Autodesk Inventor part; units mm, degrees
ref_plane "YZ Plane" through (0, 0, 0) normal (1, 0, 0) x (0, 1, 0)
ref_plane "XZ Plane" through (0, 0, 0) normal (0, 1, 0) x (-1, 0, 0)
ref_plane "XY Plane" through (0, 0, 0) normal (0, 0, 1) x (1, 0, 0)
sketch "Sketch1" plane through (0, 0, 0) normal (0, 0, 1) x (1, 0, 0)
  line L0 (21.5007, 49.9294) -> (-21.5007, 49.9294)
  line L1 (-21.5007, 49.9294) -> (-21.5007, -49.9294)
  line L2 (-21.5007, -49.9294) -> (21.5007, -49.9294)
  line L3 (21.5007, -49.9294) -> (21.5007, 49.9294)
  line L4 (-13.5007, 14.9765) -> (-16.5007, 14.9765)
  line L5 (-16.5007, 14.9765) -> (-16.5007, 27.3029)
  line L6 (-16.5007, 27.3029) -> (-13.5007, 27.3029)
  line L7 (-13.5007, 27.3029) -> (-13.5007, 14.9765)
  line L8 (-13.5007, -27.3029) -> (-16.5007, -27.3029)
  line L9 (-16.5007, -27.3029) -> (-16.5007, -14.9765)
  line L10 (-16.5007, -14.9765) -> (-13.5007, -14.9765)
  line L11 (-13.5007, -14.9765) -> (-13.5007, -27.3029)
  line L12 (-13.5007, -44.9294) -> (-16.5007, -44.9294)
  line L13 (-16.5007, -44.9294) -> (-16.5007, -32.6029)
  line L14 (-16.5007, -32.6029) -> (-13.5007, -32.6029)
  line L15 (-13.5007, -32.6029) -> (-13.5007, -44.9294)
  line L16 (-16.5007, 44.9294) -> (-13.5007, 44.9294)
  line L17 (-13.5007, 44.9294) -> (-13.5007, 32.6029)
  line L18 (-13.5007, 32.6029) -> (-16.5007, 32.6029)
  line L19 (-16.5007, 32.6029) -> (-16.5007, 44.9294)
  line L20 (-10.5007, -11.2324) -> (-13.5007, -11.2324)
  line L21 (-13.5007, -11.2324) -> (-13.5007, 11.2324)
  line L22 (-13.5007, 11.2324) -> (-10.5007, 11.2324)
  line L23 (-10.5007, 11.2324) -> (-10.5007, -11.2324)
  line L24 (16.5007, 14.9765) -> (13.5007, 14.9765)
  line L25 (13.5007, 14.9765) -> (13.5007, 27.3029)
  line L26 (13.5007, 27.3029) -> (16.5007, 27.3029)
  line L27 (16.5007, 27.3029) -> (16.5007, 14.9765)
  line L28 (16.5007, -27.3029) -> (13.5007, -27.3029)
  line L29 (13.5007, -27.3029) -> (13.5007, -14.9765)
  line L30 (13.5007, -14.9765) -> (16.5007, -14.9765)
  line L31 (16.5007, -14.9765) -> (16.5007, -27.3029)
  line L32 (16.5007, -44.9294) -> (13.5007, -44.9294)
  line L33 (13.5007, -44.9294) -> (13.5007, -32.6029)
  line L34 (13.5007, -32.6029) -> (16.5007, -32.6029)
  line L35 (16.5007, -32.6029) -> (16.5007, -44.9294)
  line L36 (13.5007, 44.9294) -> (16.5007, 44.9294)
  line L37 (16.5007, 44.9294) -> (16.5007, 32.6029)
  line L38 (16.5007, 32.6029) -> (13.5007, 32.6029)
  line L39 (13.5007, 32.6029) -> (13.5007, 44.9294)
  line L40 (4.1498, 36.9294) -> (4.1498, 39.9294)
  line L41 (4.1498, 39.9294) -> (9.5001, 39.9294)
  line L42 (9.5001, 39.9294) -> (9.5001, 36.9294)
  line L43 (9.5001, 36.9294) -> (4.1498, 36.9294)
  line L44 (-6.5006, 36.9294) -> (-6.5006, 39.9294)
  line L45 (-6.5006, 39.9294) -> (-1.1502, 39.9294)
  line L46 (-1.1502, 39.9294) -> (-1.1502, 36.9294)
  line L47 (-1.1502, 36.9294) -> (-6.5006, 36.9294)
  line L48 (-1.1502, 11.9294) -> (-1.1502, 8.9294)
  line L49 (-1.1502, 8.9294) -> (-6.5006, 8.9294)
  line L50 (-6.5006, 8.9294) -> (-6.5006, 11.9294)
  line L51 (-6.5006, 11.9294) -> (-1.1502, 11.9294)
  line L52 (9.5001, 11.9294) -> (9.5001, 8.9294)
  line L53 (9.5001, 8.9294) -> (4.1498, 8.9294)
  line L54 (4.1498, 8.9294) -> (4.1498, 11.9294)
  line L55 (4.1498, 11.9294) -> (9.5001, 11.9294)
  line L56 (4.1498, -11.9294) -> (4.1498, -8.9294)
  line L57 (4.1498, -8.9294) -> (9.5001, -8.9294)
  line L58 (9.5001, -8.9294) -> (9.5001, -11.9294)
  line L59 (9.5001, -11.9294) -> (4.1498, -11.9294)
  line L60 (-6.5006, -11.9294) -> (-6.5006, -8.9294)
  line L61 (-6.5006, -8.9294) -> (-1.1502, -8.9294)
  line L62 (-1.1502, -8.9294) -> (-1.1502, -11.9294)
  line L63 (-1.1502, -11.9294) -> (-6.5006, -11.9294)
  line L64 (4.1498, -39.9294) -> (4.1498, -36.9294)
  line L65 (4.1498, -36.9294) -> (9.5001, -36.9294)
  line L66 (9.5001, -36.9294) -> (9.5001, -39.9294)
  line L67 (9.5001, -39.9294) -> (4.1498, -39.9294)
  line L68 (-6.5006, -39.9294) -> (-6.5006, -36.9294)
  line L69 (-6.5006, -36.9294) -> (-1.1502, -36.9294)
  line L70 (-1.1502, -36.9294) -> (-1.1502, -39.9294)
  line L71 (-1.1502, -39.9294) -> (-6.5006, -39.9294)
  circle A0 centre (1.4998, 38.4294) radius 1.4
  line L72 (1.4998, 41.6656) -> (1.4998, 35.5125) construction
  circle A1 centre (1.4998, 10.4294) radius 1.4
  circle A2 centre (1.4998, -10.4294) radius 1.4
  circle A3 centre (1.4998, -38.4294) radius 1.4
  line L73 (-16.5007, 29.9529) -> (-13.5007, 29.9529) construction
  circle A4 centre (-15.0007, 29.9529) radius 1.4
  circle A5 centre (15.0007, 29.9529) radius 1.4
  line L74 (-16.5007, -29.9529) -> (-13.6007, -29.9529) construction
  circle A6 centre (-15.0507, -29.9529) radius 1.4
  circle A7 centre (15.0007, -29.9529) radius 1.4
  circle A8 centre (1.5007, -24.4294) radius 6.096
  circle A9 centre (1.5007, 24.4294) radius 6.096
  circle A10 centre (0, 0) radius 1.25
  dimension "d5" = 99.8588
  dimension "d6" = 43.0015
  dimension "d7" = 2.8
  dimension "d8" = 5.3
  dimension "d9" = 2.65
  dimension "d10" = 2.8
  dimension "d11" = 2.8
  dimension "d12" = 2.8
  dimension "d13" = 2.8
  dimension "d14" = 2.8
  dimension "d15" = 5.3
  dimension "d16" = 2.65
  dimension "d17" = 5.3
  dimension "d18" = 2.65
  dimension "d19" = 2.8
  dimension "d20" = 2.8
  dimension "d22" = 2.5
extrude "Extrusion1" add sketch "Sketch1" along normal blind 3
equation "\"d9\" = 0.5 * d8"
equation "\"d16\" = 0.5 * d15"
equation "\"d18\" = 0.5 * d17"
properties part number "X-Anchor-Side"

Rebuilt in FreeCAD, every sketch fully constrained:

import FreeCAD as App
import Part
import Sketcher


def add_polygon(sketch, points):
    """Adds a closed chain of lines whose ends are joined by coincident constraints."""
    first, n = sketch.GeometryCount, len(points)
    for a, b in zip(points, points[1:] + points[:1]):
        sketch.addGeometry(Part.LineSegment(App.Vector(*a, 0), App.Vector(*b, 0)), False)
    for i in range(n):
        sketch.addConstraint(Sketcher.Constraint("Coincident", first + i, 2, first + (i + 1) % n, 1))

doc = App.newDocument("Part")
body = doc.addObject("PartDesign::Body", "Body")

sketch1 = doc.addObject("Sketcher::SketchObject", "Sketch")
body.addObject(sketch1)
sketch1.AttachmentSupport = (doc.XY_Plane, [""])
sketch1.MapMode = "FlatFace"
add_polygon(sketch1, [(21.5, -49.9), (21.5, 49.9), (-21.5, 49.9), (-21.5, -49.9)])
add_polygon(sketch1, [(-13.5, -32.6), (-13.5, -44.9), (-16.5, -44.9), (-16.5, -32.6)])
sketch1.addGeometry(Part.Circle(App.Vector(-15.1, -30, 0), App.Vector(0, 0, 1), 1.4), False)
add_polygon(sketch1, [(-1.2, -39.9), (-6.5, -39.9), (-6.5, -36.9), (-1.2, -36.9)])
add_polygon(sketch1, [(-13.5, -15), (-13.5, -27.3), (-16.5, -27.3), (-16.5, -15)])
add_polygon(sketch1, [(-10.5, 11.2), (-10.5, -11.2), (-13.5, -11.2), (-13.5, 11.2)])
add_polygon(sketch1, [(-1.2, -11.9), (-6.5, -11.9), (-6.5, -8.9), (-1.2, -8.9)])
sketch1.addGeometry(Part.Circle(App.Vector(1.5, -38.4, 0), App.Vector(0, 0, 1), 1.4), False)
add_polygon(sketch1, [(9.5, -39.9), (4.1, -39.9), (4.1, -36.9), (9.5, -36.9)])
add_polygon(sketch1, [(16.5, -32.6), (16.5, -44.9), (13.5, -44.9), (13.5, -32.6)])
sketch1.addGeometry(Part.Circle(App.Vector(15, -30, 0), App.Vector(0, 0, 1), 1.4), False)
sketch1.addGeometry(Part.Circle(App.Vector(1.5, -24.4, 0), App.Vector(0, 0, 1), 6.1), False)
sketch1.addGeometry(Part.Circle(App.Vector(1.5, -10.4, 0), App.Vector(0, 0, 1), 1.4), False)
sketch1.addGeometry(Part.Circle(App.Vector(0, 0, 0), App.Vector(0, 0, 1), 1.2), False)
add_polygon(sketch1, [(9.5, -11.9), (4.1, -11.9), (4.1, -8.9), (9.5, -8.9)])
add_polygon(sketch1, [(16.5, -15), (16.5, -27.3), (13.5, -27.3), (13.5, -15)])
add_polygon(sketch1, [(-13.5, 27.3), (-13.5, 15), (-16.5, 15), (-16.5, 27.3)])
add_polygon(sketch1, [(-6.5, 11.9), (-1.2, 11.9), (-1.2, 8.9), (-6.5, 8.9)])
sketch1.addGeometry(Part.Circle(App.Vector(-15, 30, 0), App.Vector(0, 0, 1), 1.4), False)
add_polygon(sketch1, [(-16.5, 32.6), (-16.5, 44.9), (-13.5, 44.9), (-13.5, 32.6)])
add_polygon(sketch1, [(-1.2, 36.9), (-6.5, 36.9), (-6.5, 39.9), (-1.2, 39.9)])
sketch1.addGeometry(Part.Circle(App.Vector(1.5, 10.4, 0), App.Vector(0, 0, 1), 1.4), False)
add_polygon(sketch1, [(4.1, 11.9), (9.5, 11.9), (9.5, 8.9), (4.1, 8.9)])
sketch1.addGeometry(Part.Circle(App.Vector(1.5, 24.4, 0), App.Vector(0, 0, 1), 6.1), False)
add_polygon(sketch1, [(16.5, 27.3), (16.5, 15), (13.5, 15), (13.5, 27.3)])
sketch1.addGeometry(Part.Circle(App.Vector(1.5, 38.4, 0), App.Vector(0, 0, 1), 1.4), False)
add_polygon(sketch1, [(9.5, 36.9), (4.1, 36.9), (4.1, 39.9), (9.5, 39.9)])
sketch1.addGeometry(Part.Circle(App.Vector(15, 30, 0), App.Vector(0, 0, 1), 1.4), False)
add_polygon(sketch1, [(13.5, 32.6), (13.5, 44.9), (16.5, 44.9), (16.5, 32.6)])
sketch1.addConstraint([
    Sketcher.Constraint("Vertical", 0),
    Sketcher.Constraint("Horizontal", 1),
    Sketcher.Constraint("Vertical", 2),
    Sketcher.Constraint("Horizontal", 3),
    Sketcher.Constraint("Vertical", 4),
    Sketcher.Constraint("Horizontal", 5),
    Sketcher.Constraint("Vertical", 6),
    Sketcher.Constraint("Horizontal", 7),
    Sketcher.Constraint("Horizontal", 9),
    Sketcher.Constraint("Vertical", 10),
    Sketcher.Constraint("Horizontal", 11),
    Sketcher.Constraint("Vertical", 12),
    Sketcher.Constraint("Vertical", 13),
    Sketcher.Constraint("Horizontal", 14),
    Sketcher.Constraint("Vertical", 15),
    Sketcher.Constraint("Horizontal", 16),
    Sketcher.Constraint("Vertical", 17),
    Sketcher.Constraint("Horizontal", 18),
    Sketcher.Constraint("Vertical", 19),
    Sketcher.Constraint("Horizontal", 20),
    Sketcher.Constraint("Horizontal", 21),
    Sketcher.Constraint("Vertical", 22),
    Sketcher.Constraint("Horizontal", 23),
    Sketcher.Constraint("Vertical", 24),
    Sketcher.Constraint("Horizontal", 26),
    Sketcher.Constraint("Vertical", 27),
    Sketcher.Constraint("Horizontal", 28),
    Sketcher.Constraint("Vertical", 29),
    Sketcher.Constraint("Vertical", 30),
    Sketcher.Constraint("Horizontal", 31),
    Sketcher.Constraint("Vertical", 32),
    Sketcher.Constraint("Horizontal", 33),
    Sketcher.Constraint("Horizontal", 38),
    Sketcher.Constraint("Vertical", 39),
    Sketcher.Constraint("Horizontal", 40),
    Sketcher.Constraint("Vertical", 41),
    Sketcher.Constraint("Vertical", 42),
    Sketcher.Constraint("Horizontal", 43),
    Sketcher.Constraint("Vertical", 44),
    Sketcher.Constraint("Horizontal", 45),
    Sketcher.Constraint("Vertical", 46),
    Sketcher.Constraint("Horizontal", 47),
    Sketcher.Constraint("Vertical", 48),
    Sketcher.Constraint("Horizontal", 49),
    Sketcher.Constraint("Horizontal", 50),
    Sketcher.Constraint("Vertical", 51),
    Sketcher.Constraint("Horizontal", 52),
    Sketcher.Constraint("Vertical", 53),
    Sketcher.Constraint("Vertical", 55),
    Sketcher.Constraint("Horizontal", 56),
    Sketcher.Constraint("Vertical", 57),
    Sketcher.Constraint("Horizontal", 58),
    Sketcher.Constraint("Horizontal", 59),
    Sketcher.Constraint("Vertical", 60),
    Sketcher.Constraint("Horizontal", 61),
    Sketcher.Constraint("Vertical", 62),
    Sketcher.Constraint("Horizontal", 64),
    Sketcher.Constraint("Vertical", 65),
    Sketcher.Constraint("Horizontal", 66),
    Sketcher.Constraint("Vertical", 67),
    Sketcher.Constraint("Vertical", 69),
    Sketcher.Constraint("Horizontal", 70),
    Sketcher.Constraint("Vertical", 71),
    Sketcher.Constraint("Horizontal", 72),
    Sketcher.Constraint("Horizontal", 74),
    Sketcher.Constraint("Vertical", 75),
    Sketcher.Constraint("Horizontal", 76),
    Sketcher.Constraint("Vertical", 77),
    Sketcher.Constraint("Vertical", 79),
    Sketcher.Constraint("Horizontal", 80),
    Sketcher.Constraint("Vertical", 81),
    Sketcher.Constraint("Horizontal", 82),
    Sketcher.Constraint("Coincident", 37, 3, -1, 1),
    Sketcher.Constraint("Equal", 8, 25),
    Sketcher.Constraint("Equal", 25, 34),
    Sketcher.Constraint("Equal", 34, 36),
    Sketcher.Constraint("Equal", 36, 54),
    Sketcher.Constraint("Equal", 54, 63),
    Sketcher.Constraint("Equal", 35, 68),
    Sketcher.Constraint("Equal", 63, 73),
    Sketcher.Constraint("Equal", 73, 78),
    Sketcher.Constraint("Symmetric", 34, 3, 54, 3, -1, 1),
    Sketcher.Constraint("Symmetric", 0, 2, 2, 2, -1, 1),
    Sketcher.Constraint("Symmetric", 44, 2, 46, 2, -1, 1),
    Sketcher.Constraint("Symmetric", 42, 2, 48, 2, -1, 1),
    Sketcher.Constraint("Symmetric", 30, 2, 55, 2, -1, 1),
    Sketcher.Constraint("Symmetric", 32, 2, 57, 2, -1, 1),
    Sketcher.Constraint("Symmetric", 15, 2, 69, 2, -1, 1),
    Sketcher.Constraint("Symmetric", 13, 2, 71, 2, -1, 1),
    Sketcher.Constraint("Symmetric", 4, 2, 79, 2, -1, 1),
    Sketcher.Constraint("Symmetric", 6, 2, 81, 2, -1, 1),
    Sketcher.Constraint("Symmetric", 54, 3, 78, 3, -2),
    Sketcher.Constraint("Symmetric", 5, 2, 30, 2, -2),
    Sketcher.Constraint("Symmetric", 7, 2, 32, 2, -2),
    Sketcher.Constraint("Symmetric", 14, 2, 42, 2, -2),
    Sketcher.Constraint("Symmetric", 16, 2, 44, 2, -2),
    Sketcher.Constraint("Symmetric", 36, 3, 63, 3, -1),
    Sketcher.Constraint("Symmetric", 35, 3, 68, 3, -1),
    Sketcher.Constraint("Symmetric", 25, 3, 73, 3, -1),
    Sketcher.Constraint("Symmetric", 24, 2, 50, 2, -1),
    Sketcher.Constraint("Symmetric", 22, 2, 52, 2, -1),
    Sketcher.Constraint("Symmetric", 10, 2, 59, 2, -1),
    Sketcher.Constraint("Symmetric", 12, 2, 61, 2, -1),
    Sketcher.Constraint("Symmetric", 41, 2, 64, 2, -1),
    Sketcher.Constraint("Symmetric", 39, 2, 66, 2, -1),
    Sketcher.Constraint("Symmetric", 27, 2, 74, 2, -1),
    Sketcher.Constraint("Symmetric", 29, 2, 76, 2, -1),
    Sketcher.Constraint("Horizontal", 8, 3, 34, 3),
    Sketcher.Constraint("Horizontal", 12, 2, 26, 2),
    Sketcher.Constraint("Horizontal", 11, 2, 27, 2),
    Sketcher.Constraint("Horizontal", 24, 2, 38, 2),
    Sketcher.Constraint("Horizontal", 23, 2, 39, 2),
    Sketcher.Constraint("Vertical", 25, 3, 36, 3),
    Sketcher.Constraint("Vertical", 7, 2, 13, 2),
    Sketcher.Constraint("Vertical", 6, 2, 14, 2),
    Sketcher.Constraint("Vertical", 16, 2, 18, 2),
    Sketcher.Constraint("Vertical", 10, 2, 21, 2),
    Sketcher.Constraint("Vertical", 12, 2, 23, 2),
    Sketcher.Constraint("Vertical", 27, 2, 38, 2),
    Sketcher.Constraint("Vertical", 29, 2, 40, 2),
    Sketcher.Constraint("Equal", 16, 18),
    Sketcher.Constraint("Equal", 23, 26),
    Sketcher.Constraint("Equal", 82, 10),
    Sketcher.Constraint("Equal", 6, 13),
    Sketcher.Constraint("Equal", 12, 22),
    Sketcher.Constraint("Diameter", 8, 2.8),
    Sketcher.Constraint("Diameter", 37, 2.5),
    Sketcher.Constraint("DistanceX", 5, 2, 5, 1, 3.0),
    Sketcher.Constraint("Diameter", 35, 12.192),
    Sketcher.Constraint("DistanceX", 1, 2, 1, 1, 43.0014),
    Sketcher.Constraint("DistanceY", 0, 1, 0, 2, 99.8588),
    Sketcher.Constraint("DistanceX", -1, 1, 28, 2, 9.5),
    Sketcher.Constraint("DistanceX", 9, 2, 9, 1, 5.3504),
    Sketcher.Constraint("DistanceY", 4, 2, 4, 1, 12.3265),
    Sketcher.Constraint("DistanceY", 17, 2, 17, 1, 22.4648),
    Sketcher.Constraint("DistanceY", 8, 3, -1, 1, 29.953),
    Sketcher.Constraint("DistanceY", 6, 2, -1, 1, 32.603),
    Sketcher.Constraint("DistanceY", 13, 2, -1, 1, 27.303),
    Sketcher.Constraint("DistanceX", 8, 3, -1, 1, 15.0507),
    Sketcher.Constraint("DistanceX", -1, 1, 25, 3, 1.4998),
    Sketcher.Constraint("DistanceY", 25, 3, -1, 1, 38.4294),
    Sketcher.Constraint("DistanceX", -1, 1, 34, 3, 15.0007),
    Sketcher.Constraint("DistanceX", -1, 1, 35, 3, 1.5007),
    Sketcher.Constraint("DistanceY", 35, 3, -1, 1, 24.4294),
    Sketcher.Constraint("DistanceY", 36, 3, -1, 1, 10.4294),
    Sketcher.Constraint("DistanceX", 4, 2, -1, 1, 13.5007),
    Sketcher.Constraint("DistanceX", 9, 2, -1, 1, 6.5006),
    Sketcher.Constraint("DistanceY", 9, 2, -1, 1, 39.9294),
    Sketcher.Constraint("DistanceY", 17, 2, -1, 1, 11.2324),
    Sketcher.Constraint("DistanceY", 21, 2, -1, 1, 11.9294),
])
pad1 = doc.addObject("PartDesign::Pad", "Pad")
body.addObject(pad1)
pad1.Profile = sketch1
pad1.Length = 3

doc.recompute()
